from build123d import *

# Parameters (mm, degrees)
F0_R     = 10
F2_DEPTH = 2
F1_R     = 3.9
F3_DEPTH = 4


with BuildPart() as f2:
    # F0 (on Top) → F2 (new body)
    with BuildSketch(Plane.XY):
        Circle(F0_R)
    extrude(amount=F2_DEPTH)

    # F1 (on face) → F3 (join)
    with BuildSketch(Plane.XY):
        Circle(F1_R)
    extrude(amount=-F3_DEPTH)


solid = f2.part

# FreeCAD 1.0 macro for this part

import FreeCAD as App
import Part
import Sketcher
Q = App.Units.Quantity

doc = App.newDocument("Part")
body = doc.addObject("PartDesign::Body", "Body")

# Sketch on XY plane
sketch1 = body.newObject("Sketcher::SketchObject", "Sketch")
sketch1.AttachmentSupport = (doc.getObject("XY_Plane"), [""])
sketch1.MapMode = "FlatFace"
sketch1.addGeometry(Part.Circle(App.Vector(0, 0, 0), App.Vector(0, 0, 1), 10), False)
sketch1.addConstraint([
    Sketcher.Constraint("Coincident", 0, 3, -1, 1),
    Sketcher.Constraint("Diameter", 0, Q("20 mm")),
])
pad1 = body.newObject("PartDesign::Pad", "Pad")
pad1.Profile = sketch1
pad1.Length = 2

# Sketch on XY plane
sketch2 = body.newObject("Sketcher::SketchObject", "Sketch001")
sketch2.AttachmentSupport = (doc.getObject("XY_Plane"), [""])
sketch2.MapMode = "FlatFace"
sketch2.addGeometry(Part.Circle(App.Vector(0, 0, 0), App.Vector(0, 0, 1), 3.9), False)
sketch2.addConstraint([
    Sketcher.Constraint("Coincident", 0, 3, -1, 1),
    Sketcher.Constraint("Diameter", 0, Q("7.8 mm")),
])
pad2 = body.newObject("PartDesign::Pad", "Pad001")
pad2.Profile = sketch2
pad2.Length = 4
pad2.Reversed = True

doc.recompute()
